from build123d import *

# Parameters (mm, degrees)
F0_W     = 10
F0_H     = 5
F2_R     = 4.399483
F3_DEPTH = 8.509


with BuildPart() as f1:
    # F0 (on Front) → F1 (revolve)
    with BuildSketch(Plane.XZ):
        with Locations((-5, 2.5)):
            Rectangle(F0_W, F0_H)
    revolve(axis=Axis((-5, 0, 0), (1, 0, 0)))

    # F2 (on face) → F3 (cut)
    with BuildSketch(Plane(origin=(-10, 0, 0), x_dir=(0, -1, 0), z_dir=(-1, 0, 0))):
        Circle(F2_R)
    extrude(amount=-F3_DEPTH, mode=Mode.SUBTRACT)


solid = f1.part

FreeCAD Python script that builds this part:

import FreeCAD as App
import Part
import Sketcher
from FreeCAD import Vector
Q = App.Units.Quantity

doc = App.newDocument("Part")
params = doc.addObject("Spreadsheet::Sheet", "Params")
for row, (alias, value) in enumerate([
    ("sketch1_width", "10 mm"),
    ("sketch1_height", "5 mm"),
    ("revolution_angle", "360 deg"),
    ("pocket1_length", "8.509 mm"),
], start=1):
    params.set(f"A{row}", alias)
    params.set(f"B{row}", "=" + value)
    params.setAlias(f"B{row}", alias)

body = doc.addObject("PartDesign::Body", "Body")

# Sketch on XZ plane
sketch1 = body.newObject("Sketcher::SketchObject", "Sketch")
sketch1.AttachmentSupport = (doc.getObject("XZ_Plane"), [""])
sketch1.MapMode = "FlatFace"
sketch1.addGeometry(Part.LineSegment(Vector(-10, 5, 0), Vector(-10, 0, 0)), False)
sketch1.addGeometry(Part.LineSegment(Vector(-10, 0, 0), Vector(0, 0, 0)), False)
sketch1.addGeometry(Part.LineSegment(Vector(0, 0, 0), Vector(0, 5, 0)), False)
sketch1.addGeometry(Part.LineSegment(Vector(0, 5, 0), Vector(-10, 5, 0)), False)
sketch1.addConstraint(Sketcher.Constraint("Coincident", 0, 2, 1, 1))
sketch1.addConstraint(Sketcher.Constraint("Coincident", 1, 2, 2, 1))
sketch1.addConstraint(Sketcher.Constraint("Coincident", 2, 2, 3, 1))
sketch1.addConstraint(Sketcher.Constraint("Coincident", 3, 2, 0, 1))
sketch1.addConstraint(Sketcher.Constraint("Vertical", 0))
sketch1.addConstraint(Sketcher.Constraint("Horizontal", 1))
sketch1.addConstraint(Sketcher.Constraint("Vertical", 2))
sketch1.addConstraint(Sketcher.Constraint("Horizontal", 3))
sketch1.addConstraint(Sketcher.Constraint("Coincident", 1, 2, -1, 1))
sketch1.addConstraint(Sketcher.Constraint("DistanceX", 1, 1, 1, 2, Q("10 mm")))
sketch1.addConstraint(Sketcher.Constraint("DistanceY", 0, 2, 0, 1, Q("5 mm")))
sketch1.setExpression("Constraints[9]", "Params.sketch1_width")
sketch1.setExpression("Constraints[10]", "Params.sketch1_height")
revolution = body.newObject("PartDesign::Revolution", "Revolution")
revolution.Profile = sketch1
revolution.ReferenceAxis = (sketch1, ["H_Axis"])
revolution.setExpression("Angle", "Params.revolution_angle")

# Sketch on YZ plane
sketch2 = body.newObject("Sketcher::SketchObject", "Sketch001")
sketch2.AttachmentSupport = (doc.getObject("YZ_Plane"), [""])
sketch2.MapMode = "FlatFace"
sketch2.AttachmentOffset = App.Placement(Vector(0, 0, -10), App.Rotation())
sketch2.addGeometry(Part.Circle(Vector(0, 0, 0), Vector(0, 0, 1), 4.4), False)
sketch2.addConstraint(Sketcher.Constraint("Coincident", 0, 3, -1, 1))
sketch2.addConstraint(Sketcher.Constraint("Diameter", 0, Q("8.798966 mm")))
pocket1 = body.newObject("PartDesign::Pocket", "Pocket")
pocket1.Profile = sketch2
pocket1.setExpression("Length", "Params.pocket1_length")
pocket1.Reversed = True

doc.recompute()
